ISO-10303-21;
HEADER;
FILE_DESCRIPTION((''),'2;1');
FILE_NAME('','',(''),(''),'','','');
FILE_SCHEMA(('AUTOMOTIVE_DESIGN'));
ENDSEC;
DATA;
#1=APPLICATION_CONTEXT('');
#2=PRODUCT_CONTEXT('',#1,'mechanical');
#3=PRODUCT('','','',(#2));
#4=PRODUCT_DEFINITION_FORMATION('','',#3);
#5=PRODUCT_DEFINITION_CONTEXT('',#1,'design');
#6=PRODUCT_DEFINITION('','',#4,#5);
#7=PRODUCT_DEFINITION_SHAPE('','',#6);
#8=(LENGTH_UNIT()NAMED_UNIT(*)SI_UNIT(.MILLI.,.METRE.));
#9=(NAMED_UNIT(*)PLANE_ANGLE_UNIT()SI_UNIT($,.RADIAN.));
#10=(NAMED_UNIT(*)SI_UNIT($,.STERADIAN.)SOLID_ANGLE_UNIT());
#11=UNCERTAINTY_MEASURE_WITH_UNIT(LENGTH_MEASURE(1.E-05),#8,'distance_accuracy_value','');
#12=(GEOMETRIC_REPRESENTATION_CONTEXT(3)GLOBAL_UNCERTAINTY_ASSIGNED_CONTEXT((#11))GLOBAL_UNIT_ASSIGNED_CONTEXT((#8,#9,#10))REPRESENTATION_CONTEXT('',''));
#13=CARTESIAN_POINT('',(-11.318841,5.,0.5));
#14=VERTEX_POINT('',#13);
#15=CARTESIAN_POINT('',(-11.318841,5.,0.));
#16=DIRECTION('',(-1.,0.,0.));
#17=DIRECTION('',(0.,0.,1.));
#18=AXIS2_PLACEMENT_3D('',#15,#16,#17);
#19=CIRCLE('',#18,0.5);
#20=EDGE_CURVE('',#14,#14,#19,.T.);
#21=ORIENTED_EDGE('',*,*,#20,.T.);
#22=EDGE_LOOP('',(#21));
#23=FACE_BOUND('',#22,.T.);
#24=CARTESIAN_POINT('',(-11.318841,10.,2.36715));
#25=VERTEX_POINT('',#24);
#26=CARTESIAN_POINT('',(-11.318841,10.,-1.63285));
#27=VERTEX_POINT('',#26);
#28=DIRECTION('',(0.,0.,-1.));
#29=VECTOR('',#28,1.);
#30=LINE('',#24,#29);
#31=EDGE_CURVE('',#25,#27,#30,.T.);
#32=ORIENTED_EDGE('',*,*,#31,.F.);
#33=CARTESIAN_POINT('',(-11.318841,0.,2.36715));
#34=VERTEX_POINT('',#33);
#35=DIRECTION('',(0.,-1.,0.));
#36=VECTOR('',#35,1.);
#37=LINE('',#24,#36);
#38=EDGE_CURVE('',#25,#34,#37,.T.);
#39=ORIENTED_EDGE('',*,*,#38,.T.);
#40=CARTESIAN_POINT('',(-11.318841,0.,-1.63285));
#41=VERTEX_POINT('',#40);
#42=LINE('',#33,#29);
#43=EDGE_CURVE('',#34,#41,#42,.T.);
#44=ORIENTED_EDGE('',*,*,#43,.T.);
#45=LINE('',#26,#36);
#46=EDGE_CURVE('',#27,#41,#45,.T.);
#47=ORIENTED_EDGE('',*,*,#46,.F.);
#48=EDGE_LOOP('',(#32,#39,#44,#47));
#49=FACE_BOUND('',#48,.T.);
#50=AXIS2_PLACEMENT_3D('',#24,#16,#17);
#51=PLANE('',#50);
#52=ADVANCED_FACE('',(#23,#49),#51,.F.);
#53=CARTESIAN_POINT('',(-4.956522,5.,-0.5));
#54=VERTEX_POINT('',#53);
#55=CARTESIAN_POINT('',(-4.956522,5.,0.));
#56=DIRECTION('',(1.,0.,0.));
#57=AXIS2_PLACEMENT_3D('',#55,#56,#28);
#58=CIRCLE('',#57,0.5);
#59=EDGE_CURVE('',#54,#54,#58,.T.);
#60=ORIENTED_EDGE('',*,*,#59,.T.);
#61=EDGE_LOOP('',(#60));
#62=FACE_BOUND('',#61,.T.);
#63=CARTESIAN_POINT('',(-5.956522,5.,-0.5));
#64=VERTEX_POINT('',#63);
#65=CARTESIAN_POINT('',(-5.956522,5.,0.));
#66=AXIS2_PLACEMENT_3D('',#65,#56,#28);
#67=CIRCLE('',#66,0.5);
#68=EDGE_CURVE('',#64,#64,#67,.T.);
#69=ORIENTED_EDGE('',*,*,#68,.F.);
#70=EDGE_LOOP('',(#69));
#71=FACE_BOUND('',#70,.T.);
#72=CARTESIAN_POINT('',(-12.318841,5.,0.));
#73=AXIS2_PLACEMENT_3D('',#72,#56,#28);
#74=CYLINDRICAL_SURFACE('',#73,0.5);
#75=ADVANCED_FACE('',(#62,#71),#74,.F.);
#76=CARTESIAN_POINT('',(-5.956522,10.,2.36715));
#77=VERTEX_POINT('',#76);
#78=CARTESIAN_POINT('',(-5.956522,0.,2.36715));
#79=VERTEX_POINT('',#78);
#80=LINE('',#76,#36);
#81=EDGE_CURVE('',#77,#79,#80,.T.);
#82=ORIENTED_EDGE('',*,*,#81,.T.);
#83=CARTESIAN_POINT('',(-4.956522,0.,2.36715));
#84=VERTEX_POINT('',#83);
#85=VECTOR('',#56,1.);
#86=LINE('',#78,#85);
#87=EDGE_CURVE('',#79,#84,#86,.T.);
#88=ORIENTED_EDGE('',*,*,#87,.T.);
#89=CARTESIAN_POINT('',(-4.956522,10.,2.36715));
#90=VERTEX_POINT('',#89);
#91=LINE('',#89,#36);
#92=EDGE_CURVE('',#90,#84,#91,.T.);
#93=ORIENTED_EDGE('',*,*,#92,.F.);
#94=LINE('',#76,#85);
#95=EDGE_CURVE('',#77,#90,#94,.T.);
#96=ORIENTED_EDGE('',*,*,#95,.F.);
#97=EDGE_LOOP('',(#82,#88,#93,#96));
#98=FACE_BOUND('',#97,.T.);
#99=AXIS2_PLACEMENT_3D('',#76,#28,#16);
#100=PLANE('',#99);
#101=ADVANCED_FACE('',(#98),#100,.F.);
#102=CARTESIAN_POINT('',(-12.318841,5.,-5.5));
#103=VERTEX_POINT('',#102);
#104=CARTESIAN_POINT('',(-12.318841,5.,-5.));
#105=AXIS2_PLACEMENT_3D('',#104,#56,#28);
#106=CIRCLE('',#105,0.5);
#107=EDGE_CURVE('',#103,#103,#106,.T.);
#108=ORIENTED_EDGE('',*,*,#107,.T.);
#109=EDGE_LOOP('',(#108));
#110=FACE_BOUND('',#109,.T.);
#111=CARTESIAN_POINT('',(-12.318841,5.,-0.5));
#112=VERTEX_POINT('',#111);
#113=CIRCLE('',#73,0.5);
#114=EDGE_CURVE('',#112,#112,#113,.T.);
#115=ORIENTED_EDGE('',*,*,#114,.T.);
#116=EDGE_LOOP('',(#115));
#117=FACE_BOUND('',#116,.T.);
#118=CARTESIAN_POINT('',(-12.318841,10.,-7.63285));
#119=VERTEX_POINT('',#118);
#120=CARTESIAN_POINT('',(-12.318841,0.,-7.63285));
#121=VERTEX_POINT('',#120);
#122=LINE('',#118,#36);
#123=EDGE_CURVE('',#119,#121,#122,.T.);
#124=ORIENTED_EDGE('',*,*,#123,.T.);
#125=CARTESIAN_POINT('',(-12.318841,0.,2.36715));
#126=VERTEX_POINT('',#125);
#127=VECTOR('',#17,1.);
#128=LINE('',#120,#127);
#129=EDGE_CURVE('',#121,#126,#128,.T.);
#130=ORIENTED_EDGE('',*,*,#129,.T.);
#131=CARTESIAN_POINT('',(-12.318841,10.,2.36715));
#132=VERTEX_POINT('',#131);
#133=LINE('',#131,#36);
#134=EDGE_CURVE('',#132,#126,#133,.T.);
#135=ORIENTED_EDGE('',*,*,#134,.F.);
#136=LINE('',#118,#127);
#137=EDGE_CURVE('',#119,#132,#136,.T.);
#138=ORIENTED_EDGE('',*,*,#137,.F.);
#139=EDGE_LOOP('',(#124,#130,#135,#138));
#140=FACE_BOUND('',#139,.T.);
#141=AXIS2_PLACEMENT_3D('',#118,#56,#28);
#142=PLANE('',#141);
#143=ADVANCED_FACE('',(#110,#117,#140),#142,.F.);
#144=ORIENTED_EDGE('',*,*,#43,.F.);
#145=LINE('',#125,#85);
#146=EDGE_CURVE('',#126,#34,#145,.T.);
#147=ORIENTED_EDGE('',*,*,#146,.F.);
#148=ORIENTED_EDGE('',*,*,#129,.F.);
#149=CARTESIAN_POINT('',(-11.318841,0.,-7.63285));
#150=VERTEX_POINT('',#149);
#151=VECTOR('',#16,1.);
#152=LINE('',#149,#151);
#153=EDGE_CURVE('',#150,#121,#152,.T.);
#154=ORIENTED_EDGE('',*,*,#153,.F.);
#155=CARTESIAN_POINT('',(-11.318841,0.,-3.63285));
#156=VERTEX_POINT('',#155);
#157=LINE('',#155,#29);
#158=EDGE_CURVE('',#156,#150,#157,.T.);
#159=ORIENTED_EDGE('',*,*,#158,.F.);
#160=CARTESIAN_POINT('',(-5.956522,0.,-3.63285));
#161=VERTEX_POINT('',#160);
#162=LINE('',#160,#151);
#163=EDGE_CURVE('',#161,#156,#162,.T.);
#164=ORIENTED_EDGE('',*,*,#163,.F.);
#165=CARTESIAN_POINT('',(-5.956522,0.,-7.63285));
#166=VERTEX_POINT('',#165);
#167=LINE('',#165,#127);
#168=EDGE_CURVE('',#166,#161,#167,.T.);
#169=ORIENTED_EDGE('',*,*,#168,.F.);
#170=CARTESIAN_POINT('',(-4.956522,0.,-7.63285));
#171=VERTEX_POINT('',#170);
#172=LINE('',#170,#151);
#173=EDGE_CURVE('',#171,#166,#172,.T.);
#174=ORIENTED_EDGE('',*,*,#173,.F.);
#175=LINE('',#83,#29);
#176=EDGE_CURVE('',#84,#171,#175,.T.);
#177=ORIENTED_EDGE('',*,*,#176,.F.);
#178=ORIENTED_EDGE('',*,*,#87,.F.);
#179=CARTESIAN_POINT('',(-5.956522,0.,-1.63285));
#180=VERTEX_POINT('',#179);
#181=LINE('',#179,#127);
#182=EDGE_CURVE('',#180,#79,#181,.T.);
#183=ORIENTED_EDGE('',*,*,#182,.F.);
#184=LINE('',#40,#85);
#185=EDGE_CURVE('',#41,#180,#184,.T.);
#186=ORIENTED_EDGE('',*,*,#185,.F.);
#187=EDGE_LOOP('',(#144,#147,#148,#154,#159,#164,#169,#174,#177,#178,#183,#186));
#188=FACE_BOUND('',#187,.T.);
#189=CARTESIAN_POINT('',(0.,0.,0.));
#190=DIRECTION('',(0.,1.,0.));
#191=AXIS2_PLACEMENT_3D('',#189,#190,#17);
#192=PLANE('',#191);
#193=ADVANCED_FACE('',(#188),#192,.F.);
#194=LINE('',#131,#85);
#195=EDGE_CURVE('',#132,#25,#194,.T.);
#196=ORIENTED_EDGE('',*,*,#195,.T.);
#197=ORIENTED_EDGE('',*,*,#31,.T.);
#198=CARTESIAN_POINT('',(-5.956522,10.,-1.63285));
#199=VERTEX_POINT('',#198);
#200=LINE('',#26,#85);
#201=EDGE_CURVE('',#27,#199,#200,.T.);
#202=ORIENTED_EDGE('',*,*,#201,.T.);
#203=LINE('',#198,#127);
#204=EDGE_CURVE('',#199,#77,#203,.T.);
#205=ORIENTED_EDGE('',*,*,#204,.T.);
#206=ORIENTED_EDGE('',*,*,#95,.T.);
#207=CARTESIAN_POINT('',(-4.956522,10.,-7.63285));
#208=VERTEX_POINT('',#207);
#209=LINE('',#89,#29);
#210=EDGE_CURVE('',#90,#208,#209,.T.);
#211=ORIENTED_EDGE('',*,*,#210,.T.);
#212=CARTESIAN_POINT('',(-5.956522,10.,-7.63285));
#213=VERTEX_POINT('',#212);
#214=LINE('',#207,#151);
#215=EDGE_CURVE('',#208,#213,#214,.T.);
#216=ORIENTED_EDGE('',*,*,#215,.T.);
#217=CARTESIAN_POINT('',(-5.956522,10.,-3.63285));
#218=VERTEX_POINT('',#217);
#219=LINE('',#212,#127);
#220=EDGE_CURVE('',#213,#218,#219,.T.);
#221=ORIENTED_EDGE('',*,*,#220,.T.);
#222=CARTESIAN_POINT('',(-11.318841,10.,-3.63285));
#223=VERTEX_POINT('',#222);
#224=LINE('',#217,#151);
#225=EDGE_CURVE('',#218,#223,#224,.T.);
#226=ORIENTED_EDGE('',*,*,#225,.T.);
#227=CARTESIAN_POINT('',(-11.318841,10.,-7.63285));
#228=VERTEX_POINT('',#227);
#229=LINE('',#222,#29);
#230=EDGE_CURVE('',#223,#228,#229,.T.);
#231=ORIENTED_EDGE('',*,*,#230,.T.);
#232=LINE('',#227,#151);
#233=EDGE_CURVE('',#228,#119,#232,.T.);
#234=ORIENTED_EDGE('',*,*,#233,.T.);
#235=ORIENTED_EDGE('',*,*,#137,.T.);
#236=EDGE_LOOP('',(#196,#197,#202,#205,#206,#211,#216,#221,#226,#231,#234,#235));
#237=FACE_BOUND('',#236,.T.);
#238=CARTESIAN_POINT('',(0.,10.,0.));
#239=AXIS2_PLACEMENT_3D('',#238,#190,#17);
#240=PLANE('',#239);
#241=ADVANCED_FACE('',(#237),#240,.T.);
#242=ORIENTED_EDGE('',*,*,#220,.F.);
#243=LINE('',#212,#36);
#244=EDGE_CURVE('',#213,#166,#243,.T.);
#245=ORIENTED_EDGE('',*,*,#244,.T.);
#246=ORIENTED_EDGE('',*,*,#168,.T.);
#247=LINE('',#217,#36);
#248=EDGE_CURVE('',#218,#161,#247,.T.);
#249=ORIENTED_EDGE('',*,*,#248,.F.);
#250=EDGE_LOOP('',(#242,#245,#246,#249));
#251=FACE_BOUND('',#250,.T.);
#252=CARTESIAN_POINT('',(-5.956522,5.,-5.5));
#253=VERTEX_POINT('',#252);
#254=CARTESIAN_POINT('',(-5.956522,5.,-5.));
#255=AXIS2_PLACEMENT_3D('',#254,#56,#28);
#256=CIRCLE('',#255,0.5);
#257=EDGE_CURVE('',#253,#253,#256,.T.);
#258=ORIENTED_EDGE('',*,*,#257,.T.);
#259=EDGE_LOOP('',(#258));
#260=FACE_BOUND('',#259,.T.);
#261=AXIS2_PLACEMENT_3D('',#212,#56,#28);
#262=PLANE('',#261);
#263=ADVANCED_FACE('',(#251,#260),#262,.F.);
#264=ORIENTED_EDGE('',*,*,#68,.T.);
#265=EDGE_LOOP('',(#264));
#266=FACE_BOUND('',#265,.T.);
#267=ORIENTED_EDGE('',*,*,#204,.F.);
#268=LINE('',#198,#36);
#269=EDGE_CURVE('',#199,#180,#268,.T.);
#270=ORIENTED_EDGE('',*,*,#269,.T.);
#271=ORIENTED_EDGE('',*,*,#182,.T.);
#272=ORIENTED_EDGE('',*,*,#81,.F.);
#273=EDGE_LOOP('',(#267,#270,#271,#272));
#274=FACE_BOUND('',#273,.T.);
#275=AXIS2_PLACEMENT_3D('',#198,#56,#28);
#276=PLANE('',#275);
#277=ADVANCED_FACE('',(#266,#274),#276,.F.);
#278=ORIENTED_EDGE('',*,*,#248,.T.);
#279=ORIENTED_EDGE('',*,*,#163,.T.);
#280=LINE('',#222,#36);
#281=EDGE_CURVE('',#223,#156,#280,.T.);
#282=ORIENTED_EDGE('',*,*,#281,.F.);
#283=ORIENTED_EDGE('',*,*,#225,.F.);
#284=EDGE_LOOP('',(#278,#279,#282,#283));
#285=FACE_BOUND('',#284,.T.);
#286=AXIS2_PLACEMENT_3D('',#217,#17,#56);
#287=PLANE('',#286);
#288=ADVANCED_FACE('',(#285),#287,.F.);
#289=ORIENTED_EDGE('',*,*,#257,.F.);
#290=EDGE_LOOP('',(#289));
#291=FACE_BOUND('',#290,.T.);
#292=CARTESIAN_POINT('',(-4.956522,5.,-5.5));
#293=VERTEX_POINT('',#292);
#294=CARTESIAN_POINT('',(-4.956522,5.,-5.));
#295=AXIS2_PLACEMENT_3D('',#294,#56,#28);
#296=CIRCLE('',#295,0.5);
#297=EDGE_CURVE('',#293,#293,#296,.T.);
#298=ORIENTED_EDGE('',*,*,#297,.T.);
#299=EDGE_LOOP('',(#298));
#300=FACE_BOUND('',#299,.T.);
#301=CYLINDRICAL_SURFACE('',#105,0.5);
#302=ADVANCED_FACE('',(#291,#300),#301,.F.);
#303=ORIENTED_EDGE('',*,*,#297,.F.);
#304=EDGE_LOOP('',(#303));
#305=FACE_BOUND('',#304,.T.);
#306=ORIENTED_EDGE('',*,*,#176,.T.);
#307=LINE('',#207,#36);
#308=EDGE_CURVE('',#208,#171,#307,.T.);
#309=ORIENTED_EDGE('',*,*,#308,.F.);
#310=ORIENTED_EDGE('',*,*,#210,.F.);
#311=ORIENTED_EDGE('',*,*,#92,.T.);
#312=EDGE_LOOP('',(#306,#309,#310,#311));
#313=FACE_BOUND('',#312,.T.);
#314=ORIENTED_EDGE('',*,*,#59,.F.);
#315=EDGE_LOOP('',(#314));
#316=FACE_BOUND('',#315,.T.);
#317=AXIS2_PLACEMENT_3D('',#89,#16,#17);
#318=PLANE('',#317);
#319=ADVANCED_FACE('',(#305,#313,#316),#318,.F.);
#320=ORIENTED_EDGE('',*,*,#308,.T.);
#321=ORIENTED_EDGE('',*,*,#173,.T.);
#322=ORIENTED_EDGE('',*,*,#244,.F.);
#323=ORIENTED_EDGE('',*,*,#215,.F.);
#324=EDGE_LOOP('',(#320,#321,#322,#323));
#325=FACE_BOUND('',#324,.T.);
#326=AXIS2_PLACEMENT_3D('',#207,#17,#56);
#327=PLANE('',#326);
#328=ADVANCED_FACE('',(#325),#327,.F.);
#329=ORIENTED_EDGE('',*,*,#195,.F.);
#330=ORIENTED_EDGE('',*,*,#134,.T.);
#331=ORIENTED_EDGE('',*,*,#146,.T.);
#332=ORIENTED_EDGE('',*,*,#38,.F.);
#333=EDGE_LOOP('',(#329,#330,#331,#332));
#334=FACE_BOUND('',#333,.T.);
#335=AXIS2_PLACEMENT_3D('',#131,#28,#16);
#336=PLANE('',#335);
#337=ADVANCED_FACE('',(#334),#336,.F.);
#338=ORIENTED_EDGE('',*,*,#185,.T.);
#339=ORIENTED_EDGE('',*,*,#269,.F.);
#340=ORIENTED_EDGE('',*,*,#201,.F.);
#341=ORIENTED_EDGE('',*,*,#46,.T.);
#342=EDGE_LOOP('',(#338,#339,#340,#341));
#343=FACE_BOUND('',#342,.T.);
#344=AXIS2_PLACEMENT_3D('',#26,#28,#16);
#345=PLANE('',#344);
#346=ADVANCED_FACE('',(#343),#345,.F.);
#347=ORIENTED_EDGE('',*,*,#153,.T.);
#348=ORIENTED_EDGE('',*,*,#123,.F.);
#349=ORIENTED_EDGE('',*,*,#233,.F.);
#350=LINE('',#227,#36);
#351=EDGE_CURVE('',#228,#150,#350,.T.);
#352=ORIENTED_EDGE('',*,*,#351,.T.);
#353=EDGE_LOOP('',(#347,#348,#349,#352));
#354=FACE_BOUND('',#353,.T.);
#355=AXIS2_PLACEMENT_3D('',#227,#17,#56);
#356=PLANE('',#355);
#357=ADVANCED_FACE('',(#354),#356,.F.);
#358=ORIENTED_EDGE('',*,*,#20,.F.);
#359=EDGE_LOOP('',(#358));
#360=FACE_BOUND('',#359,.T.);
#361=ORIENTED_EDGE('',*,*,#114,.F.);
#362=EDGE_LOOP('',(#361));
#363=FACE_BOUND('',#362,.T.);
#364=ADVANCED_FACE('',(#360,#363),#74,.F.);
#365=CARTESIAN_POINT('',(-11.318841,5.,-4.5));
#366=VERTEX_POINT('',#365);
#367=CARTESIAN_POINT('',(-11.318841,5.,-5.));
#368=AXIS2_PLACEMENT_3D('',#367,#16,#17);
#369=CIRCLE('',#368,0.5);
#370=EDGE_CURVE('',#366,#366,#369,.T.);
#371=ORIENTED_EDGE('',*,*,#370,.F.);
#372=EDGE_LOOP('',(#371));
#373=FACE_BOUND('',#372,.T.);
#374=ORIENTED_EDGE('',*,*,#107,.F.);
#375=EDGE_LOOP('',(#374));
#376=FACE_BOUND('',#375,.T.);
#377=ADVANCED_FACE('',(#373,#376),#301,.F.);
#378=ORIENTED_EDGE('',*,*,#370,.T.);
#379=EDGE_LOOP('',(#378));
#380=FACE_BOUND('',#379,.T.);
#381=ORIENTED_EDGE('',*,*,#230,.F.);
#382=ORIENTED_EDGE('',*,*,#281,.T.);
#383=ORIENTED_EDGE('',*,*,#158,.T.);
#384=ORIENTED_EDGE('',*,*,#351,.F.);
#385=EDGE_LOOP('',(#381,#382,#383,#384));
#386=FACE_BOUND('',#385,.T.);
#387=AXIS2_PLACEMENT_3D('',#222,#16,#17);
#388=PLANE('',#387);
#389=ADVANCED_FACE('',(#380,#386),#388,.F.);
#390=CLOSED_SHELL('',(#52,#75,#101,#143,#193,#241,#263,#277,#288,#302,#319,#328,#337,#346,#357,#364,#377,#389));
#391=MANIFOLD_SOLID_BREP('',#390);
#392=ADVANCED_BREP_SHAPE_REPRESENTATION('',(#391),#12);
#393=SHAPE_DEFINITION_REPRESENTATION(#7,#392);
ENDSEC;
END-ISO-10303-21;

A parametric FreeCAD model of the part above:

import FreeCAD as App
import Part
import Sketcher
from FreeCAD import Vector
Q = App.Units.Quantity


def add_polygon(sketch, points):
    """Adds a closed chain of lines whose ends are joined by coincident constraints."""
    first, n = sketch.GeometryCount, len(points)
    for a, b in zip(points, points[1:] + points[:1]):
        sketch.addGeometry(Part.LineSegment(App.Vector(*a, 0), App.Vector(*b, 0)), False)
    for i in range(n):
        sketch.addConstraint(Sketcher.Constraint("Coincident", first + i, 2, first + (i + 1) % n, 1))

doc = App.newDocument("Part")
body = doc.addObject("PartDesign::Body", "Body")

sketch1 = body.newObject("Sketcher::SketchObject", "Sketch")
sketch1.AttachmentSupport = (doc.getObject("XZ_Plane"), [""])
sketch1.MapMode = "FlatFace"
add_polygon(sketch1, [(-12.3, -7.6), (-12.3, 2.4), (-11.3, 2.4), (-11.3, -1.6), (-6, -1.6), (-6, 2.4), (-5, 2.4), (-5, -7.6), (-6, -7.6), (-6, -3.6), (-11.3, -3.6), (-11.3, -7.6)])
sketch1.addConstraint(Sketcher.Constraint("Vertical", 0))
sketch1.addConstraint(Sketcher.Constraint("Horizontal", 1))
sketch1.addConstraint(Sketcher.Constraint("Vertical", 2))
sketch1.addConstraint(Sketcher.Constraint("Horizontal", 3))
sketch1.addConstraint(Sketcher.Constraint("Vertical", 4))
sketch1.addConstraint(Sketcher.Constraint("Horizontal", 5))
sketch1.addConstraint(Sketcher.Constraint("Vertical", 6))
sketch1.addConstraint(Sketcher.Constraint("Horizontal", 7))
sketch1.addConstraint(Sketcher.Constraint("Vertical", 8))
sketch1.addConstraint(Sketcher.Constraint("Horizontal", 9))
sketch1.addConstraint(Sketcher.Constraint("Vertical", 10))
sketch1.addConstraint(Sketcher.Constraint("Horizontal", 11))
sketch1.addConstraint(Sketcher.Constraint("Horizontal", 1, 2, 4, 2))
sketch1.addConstraint(Sketcher.Constraint("Horizontal", 7, 2, 10, 2))
sketch1.addConstraint(Sketcher.Constraint("Vertical", 4, 2, 7, 2))
sketch1.addConstraint(Sketcher.Constraint("Vertical", 2, 2, 9, 2))
sketch1.addConstraint(Sketcher.Constraint("Equal", 1, 5))
sketch1.addConstraint(Sketcher.Constraint("Equal", 4, 8))
sketch1.addConstraint(Sketcher.Constraint("DistanceX", 1, 1, 1, 2, Q("1 mm")))
sketch1.addConstraint(Sketcher.Constraint("DistanceY", 0, 1, 0, 2, Q("10 mm")))
sketch1.addConstraint(Sketcher.Constraint("DistanceY", 2, 2, 2, 1, Q("4 mm")))
sketch1.addConstraint(Sketcher.Constraint("DistanceX", 3, 1, 3, 2, Q("5.362319 mm")))
sketch1.addConstraint(Sketcher.Constraint("DistanceX", 0, 2, -1, 1, Q("12.318841 mm")))
sketch1.addConstraint(Sketcher.Constraint("DistanceY", -1, 1, 0, 2, Q("2.36715 mm")))
pad1 = body.newObject("PartDesign::Pad", "Pad")
pad1.Profile = sketch1
pad1.Length = 10
pad1.Reversed = True

sketch2 = body.newObject("Sketcher::SketchObject", "Sketch001")
sketch2.AttachmentSupport = (doc.getObject("YZ_Plane"), [""])
sketch2.MapMode = "FlatFace"
sketch2.AttachmentOffset = App.Placement(Vector(0, 0, -4.956522), App.Rotation())
sketch2.addGeometry(Part.Circle(Vector(5, 0, 0), Vector(0, 0, 1), 0.5), False)
sketch2.addConstraint(Sketcher.Constraint("PointOnObject", 0, 3, -1))
sketch2.addConstraint(Sketcher.Constraint("Diameter", 0, Q("1 mm")))
sketch2.addConstraint(Sketcher.Constraint("DistanceX", -1, 1, 0, 3, Q("5 mm")))
pocket1 = body.newObject("PartDesign::Pocket", "Pocket")
pocket1.Profile = sketch2
pocket1.Type = "ThroughAll"
doc.recompute()

linearpattern = body.newObject("PartDesign::LinearPattern", "LinearPattern")
linearpattern.Originals = [pocket1]
linearpattern.Direction = (doc.getObject("Z_Axis"), [""])
linearpattern.Mode = "offset"
linearpattern.Offset = 5
linearpattern.Occurrences = 2
linearpattern.Reversed = True
body.Tip = linearpattern

doc.recompute()
